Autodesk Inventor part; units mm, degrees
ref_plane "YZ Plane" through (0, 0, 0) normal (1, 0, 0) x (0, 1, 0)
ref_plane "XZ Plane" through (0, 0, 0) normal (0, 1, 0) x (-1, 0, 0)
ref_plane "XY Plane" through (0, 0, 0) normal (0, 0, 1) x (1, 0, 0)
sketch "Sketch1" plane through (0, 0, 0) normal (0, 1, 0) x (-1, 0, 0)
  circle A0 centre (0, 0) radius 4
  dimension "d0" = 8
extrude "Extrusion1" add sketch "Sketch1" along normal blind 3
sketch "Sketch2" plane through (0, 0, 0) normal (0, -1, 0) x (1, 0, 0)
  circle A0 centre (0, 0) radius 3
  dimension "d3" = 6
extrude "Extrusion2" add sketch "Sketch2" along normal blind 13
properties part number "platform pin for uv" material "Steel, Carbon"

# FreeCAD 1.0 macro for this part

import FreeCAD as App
import Part
import Sketcher

V = App.Vector

doc = App.newDocument("Part")
body = doc.addObject("PartDesign::Body", "Body")

sketch1 = doc.addObject("Sketcher::SketchObject", "Sketch")
body.addObject(sketch1)
sketch1.AttachmentSupport = (doc.XZ_Plane, [""])
sketch1.MapMode = "FlatFace"
sketch1.addGeometry(Part.Circle(V(0, 0, 0), V(0, 0, 1), 4), False)
sketch1.addConstraint([
    Sketcher.Constraint("Coincident", 0, 3, -1, 1),
    Sketcher.Constraint("Diameter", 0, 8.0),
])
pad1 = doc.addObject("PartDesign::Pad", "Pad")
body.addObject(pad1)
pad1.Profile = sketch1
pad1.Length = 3
pad1.Reversed = True

sketch2 = doc.addObject("Sketcher::SketchObject", "Sketch001")
body.addObject(sketch2)
sketch2.AttachmentSupport = (doc.XZ_Plane, [""])
sketch2.MapMode = "FlatFace"
sketch2.addGeometry(Part.Circle(V(0, 0, 0), V(0, 0, 1), 3), False)
sketch2.addConstraint([
    Sketcher.Constraint("Coincident", 0, 3, -1, 1),
    Sketcher.Constraint("Diameter", 0, 6.0),
])
pad2 = doc.addObject("PartDesign::Pad", "Pad001")
body.addObject(pad2)
pad2.Profile = sketch2
pad2.Length = 13

doc.recompute()
